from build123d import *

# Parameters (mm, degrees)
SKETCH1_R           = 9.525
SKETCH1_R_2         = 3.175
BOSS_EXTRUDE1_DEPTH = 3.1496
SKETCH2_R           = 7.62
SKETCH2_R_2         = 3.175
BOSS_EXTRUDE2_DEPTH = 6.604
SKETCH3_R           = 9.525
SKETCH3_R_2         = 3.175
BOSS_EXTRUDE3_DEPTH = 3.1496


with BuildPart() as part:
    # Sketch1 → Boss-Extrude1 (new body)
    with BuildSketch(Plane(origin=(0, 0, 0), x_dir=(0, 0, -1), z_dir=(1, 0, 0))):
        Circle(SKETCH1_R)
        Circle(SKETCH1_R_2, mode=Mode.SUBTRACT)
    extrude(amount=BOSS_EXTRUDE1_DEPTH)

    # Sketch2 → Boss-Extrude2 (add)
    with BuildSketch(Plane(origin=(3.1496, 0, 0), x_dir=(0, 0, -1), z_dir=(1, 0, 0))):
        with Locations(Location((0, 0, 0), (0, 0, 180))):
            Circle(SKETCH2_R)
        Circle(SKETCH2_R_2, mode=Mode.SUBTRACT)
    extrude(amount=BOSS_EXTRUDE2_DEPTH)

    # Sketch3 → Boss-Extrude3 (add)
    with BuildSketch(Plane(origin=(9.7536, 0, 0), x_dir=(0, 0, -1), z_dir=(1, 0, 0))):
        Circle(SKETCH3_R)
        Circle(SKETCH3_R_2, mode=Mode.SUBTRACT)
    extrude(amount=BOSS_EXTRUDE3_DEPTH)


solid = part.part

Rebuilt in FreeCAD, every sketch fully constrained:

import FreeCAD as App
import Part
import Sketcher

V = App.Vector
Q = App.Units.Quantity

doc = App.newDocument("Part")
body = doc.addObject("PartDesign::Body", "Body")

# Sketch on YZ plane
sketch1 = body.newObject("Sketcher::SketchObject", "Sketch")
sketch1.AttachmentSupport = (doc.getObject("YZ_Plane"), [""])
sketch1.MapMode = "FlatFace"
sketch1.addGeometry([
    Part.Circle(V(0, 0, 0), V(0, 0, 1), 9.5),
    Part.Circle(V(0, 0, 0), V(0, 0, 1), 3.2),
], False)
sketch1.addConstraint([
    Sketcher.Constraint("Coincident", 0, 3, -1, 1),
    Sketcher.Constraint("Coincident", 1, 3, -1, 1),
    Sketcher.Constraint("Diameter", 0, Q("0.75 in")),
    Sketcher.Constraint("Diameter", 1, Q("0.25 in")),
])
pad1 = body.newObject("PartDesign::Pad", "Pad")
pad1.Profile = sketch1
pad1.Length = Q("0.124 in")

# Sketch on YZ plane
sketch2 = body.newObject("Sketcher::SketchObject", "Sketch001")
sketch2.AttachmentSupport = (doc.getObject("YZ_Plane"), [""])
sketch2.MapMode = "FlatFace"
sketch2.AttachmentOffset = App.Placement(V(0, 0, 0.124 * 25.4), App.Rotation())
sketch2.addGeometry([
    Part.Circle(V(0, 0, 0), V(0, 0, 1), 7.6),
    Part.Circle(V(0, 0, 0), V(0, 0, 1), 3.2),
], False)
sketch2.addConstraint([
    Sketcher.Constraint("Coincident", 0, 3, -1, 1),
    Sketcher.Constraint("Coincident", 1, 3, -1, 1),
    Sketcher.Constraint("Diameter", 0, Q("0.6 in")),
    Sketcher.Constraint("Diameter", 1, Q("0.25 in")),
])
pad2 = body.newObject("PartDesign::Pad", "Pad001")
pad2.Profile = sketch2
pad2.Length = Q("0.26 in")

# Sketch on YZ plane
sketch3 = body.newObject("Sketcher::SketchObject", "Sketch002")
sketch3.AttachmentSupport = (doc.getObject("YZ_Plane"), [""])
sketch3.MapMode = "FlatFace"
sketch3.AttachmentOffset = App.Placement(V(0, 0, 0.384 * 25.4), App.Rotation())
sketch3.addGeometry([
    Part.Circle(V(0, 0, 0), V(0, 0, 1), 9.5),
    Part.Circle(V(0, 0, 0), V(0, 0, 1), 3.2),
], False)
sketch3.addConstraint([
    Sketcher.Constraint("Coincident", 0, 3, -1, 1),
    Sketcher.Constraint("Coincident", 1, 3, -1, 1),
    Sketcher.Constraint("Diameter", 0, Q("0.75 in")),
    Sketcher.Constraint("Diameter", 1, Q("0.25 in")),
])
pad3 = body.newObject("PartDesign::Pad", "Pad002")
pad3.Profile = sketch3
pad3.Length = Q("0.124 in")

doc.recompute()
